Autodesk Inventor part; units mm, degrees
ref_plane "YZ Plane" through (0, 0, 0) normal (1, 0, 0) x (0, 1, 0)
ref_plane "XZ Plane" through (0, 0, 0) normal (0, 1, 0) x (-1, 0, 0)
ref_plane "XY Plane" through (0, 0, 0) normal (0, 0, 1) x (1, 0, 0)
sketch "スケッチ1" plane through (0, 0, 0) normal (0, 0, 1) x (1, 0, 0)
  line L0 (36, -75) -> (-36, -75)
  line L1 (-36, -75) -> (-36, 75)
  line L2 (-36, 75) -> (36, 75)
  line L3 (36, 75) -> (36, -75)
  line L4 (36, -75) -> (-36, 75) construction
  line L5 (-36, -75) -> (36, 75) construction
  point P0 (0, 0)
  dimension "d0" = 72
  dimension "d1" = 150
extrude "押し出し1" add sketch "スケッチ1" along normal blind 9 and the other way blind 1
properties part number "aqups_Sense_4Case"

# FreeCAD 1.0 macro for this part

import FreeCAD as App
import Part
import Sketcher

V = App.Vector


def add_polygon(sketch, points):
    """Adds a closed chain of lines whose ends are joined by coincident constraints."""
    first, n = sketch.GeometryCount, len(points)
    for a, b in zip(points, points[1:] + points[:1]):
        sketch.addGeometry(Part.LineSegment(App.Vector(*a, 0), App.Vector(*b, 0)), False)
    for i in range(n):
        sketch.addConstraint(Sketcher.Constraint("Coincident", first + i, 2, first + (i + 1) % n, 1))

doc = App.newDocument("Part")
body = doc.addObject("PartDesign::Body", "Body")

sketch1 = body.newObject("Sketcher::SketchObject", "Sketch")
sketch1.AttachmentSupport = (doc.getObject("XY_Plane"), [""])
sketch1.MapMode = "FlatFace"
add_polygon(sketch1, [(-36, -75), (36, -75), (36, 75), (-36, 75)])
sketch1.addConstraint(Sketcher.Constraint("Horizontal", 0))
sketch1.addConstraint(Sketcher.Constraint("Vertical", 1))
sketch1.addConstraint(Sketcher.Constraint("Horizontal", 2))
sketch1.addConstraint(Sketcher.Constraint("Vertical", 3))
sketch1.addConstraint(Sketcher.Constraint("Symmetric", 0, 2, 2, 2, -1, 1))
sketch1.addConstraint(Sketcher.Constraint("DistanceX", 0, 1, 0, 2, 72.0))
sketch1.addConstraint(Sketcher.Constraint("DistanceY", 1, 1, 1, 2, 150.0))
pad1 = body.newObject("PartDesign::Pad", "Pad")
pad1.Profile = sketch1
pad1.Type = "TwoLengths"
pad1.Length = 9
pad1.Length2 = 1

doc.recompute()
